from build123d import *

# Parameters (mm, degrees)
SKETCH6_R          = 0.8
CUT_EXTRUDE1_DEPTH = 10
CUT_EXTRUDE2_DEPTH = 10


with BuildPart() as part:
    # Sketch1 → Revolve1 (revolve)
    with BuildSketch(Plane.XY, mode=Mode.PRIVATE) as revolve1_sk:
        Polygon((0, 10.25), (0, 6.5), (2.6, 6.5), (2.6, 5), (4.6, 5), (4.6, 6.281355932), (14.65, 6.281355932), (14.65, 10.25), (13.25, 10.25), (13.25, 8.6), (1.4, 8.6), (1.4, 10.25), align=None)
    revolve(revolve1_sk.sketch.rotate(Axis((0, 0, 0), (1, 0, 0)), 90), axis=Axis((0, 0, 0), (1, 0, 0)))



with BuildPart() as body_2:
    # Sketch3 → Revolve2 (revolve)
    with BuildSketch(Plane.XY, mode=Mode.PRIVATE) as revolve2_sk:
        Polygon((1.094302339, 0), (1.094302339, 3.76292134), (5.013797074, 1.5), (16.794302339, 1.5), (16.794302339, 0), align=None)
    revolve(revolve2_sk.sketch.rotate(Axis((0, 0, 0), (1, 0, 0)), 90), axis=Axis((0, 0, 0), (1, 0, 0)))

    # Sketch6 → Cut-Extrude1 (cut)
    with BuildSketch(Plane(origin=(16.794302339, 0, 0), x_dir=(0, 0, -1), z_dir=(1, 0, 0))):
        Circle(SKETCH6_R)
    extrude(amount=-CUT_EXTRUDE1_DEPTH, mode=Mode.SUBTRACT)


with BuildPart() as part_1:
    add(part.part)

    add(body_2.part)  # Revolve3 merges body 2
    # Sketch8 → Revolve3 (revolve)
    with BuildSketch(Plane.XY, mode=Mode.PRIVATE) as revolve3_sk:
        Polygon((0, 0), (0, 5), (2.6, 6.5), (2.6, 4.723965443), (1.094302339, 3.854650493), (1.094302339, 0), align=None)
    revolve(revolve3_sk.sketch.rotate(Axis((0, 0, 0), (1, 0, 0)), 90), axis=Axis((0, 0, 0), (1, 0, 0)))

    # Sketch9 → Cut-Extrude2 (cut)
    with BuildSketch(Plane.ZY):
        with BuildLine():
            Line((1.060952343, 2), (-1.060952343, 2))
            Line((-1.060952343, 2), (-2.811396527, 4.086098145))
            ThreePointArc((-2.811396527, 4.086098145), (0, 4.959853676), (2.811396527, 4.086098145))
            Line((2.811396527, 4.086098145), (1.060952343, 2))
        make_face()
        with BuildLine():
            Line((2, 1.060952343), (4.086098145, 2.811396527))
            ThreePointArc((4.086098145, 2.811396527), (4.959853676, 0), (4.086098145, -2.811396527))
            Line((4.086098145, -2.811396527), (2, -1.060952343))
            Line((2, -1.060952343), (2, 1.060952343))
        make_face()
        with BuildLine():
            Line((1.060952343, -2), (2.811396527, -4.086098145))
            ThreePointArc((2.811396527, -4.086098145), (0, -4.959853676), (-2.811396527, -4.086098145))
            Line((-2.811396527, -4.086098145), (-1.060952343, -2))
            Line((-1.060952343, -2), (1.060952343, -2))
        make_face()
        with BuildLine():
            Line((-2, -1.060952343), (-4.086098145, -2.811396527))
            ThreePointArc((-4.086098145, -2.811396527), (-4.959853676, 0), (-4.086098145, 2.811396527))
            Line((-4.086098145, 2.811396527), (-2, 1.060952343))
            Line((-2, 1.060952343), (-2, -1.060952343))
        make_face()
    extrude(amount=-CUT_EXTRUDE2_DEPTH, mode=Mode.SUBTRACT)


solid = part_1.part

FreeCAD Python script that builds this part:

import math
import FreeCAD as App
import Part
import Sketcher
from FreeCAD import Vector
Q = App.Units.Quantity

doc = App.newDocument("Part")
body = doc.addObject("PartDesign::Body", "Body")

# Sketch on XY plane
sketch1 = body.newObject("Sketcher::SketchObject", "Sketch")
sketch1.AttachmentSupport = (doc.getObject("XY_Plane"), [""])
sketch1.MapMode = "FlatFace"
sketch1.addGeometry(Part.LineSegment(Vector(0, 10.2, 0), Vector(0, 6.5, 0)), False)
sketch1.addGeometry(Part.LineSegment(Vector(0, 6.5, 0), Vector(2.6, 6.5, 0)), False)
sketch1.addGeometry(Part.LineSegment(Vector(2.6, 6.5, 0), Vector(2.6, 5, 0)), False)
sketch1.addGeometry(Part.LineSegment(Vector(2.6, 5, 0), Vector(4.6, 5, 0)), False)
sketch1.addGeometry(Part.LineSegment(Vector(4.6, 5, 0), Vector(4.6, 6.3, 0)), False)
sketch1.addGeometry(Part.LineSegment(Vector(4.6, 6.3, 0), Vector(14.7, 6.3, 0)), False)
sketch1.addGeometry(Part.LineSegment(Vector(14.7, 6.3, 0), Vector(14.7, 10.2, 0)), False)
sketch1.addGeometry(Part.LineSegment(Vector(14.7, 10.2, 0), Vector(13.2, 10.2, 0)), False)
sketch1.addGeometry(Part.LineSegment(Vector(13.2, 10.2, 0), Vector(13.2, 8.6, 0)), False)
sketch1.addGeometry(Part.LineSegment(Vector(13.2, 8.6, 0), Vector(1.4, 8.6, 0)), False)
sketch1.addGeometry(Part.LineSegment(Vector(1.4, 8.6, 0), Vector(1.4, 10.2, 0)), False)
sketch1.addGeometry(Part.LineSegment(Vector(1.4, 10.2, 0), Vector(0, 10.2, 0)), False)
sketch1.addConstraint(Sketcher.Constraint("Coincident", 0, 2, 1, 1))
sketch1.addConstraint(Sketcher.Constraint("Coincident", 1, 2, 2, 1))
sketch1.addConstraint(Sketcher.Constraint("Coincident", 2, 2, 3, 1))
sketch1.addConstraint(Sketcher.Constraint("Coincident", 3, 2, 4, 1))
sketch1.addConstraint(Sketcher.Constraint("Coincident", 4, 2, 5, 1))
sketch1.addConstraint(Sketcher.Constraint("Coincident", 5, 2, 6, 1))
sketch1.addConstraint(Sketcher.Constraint("Coincident", 6, 2, 7, 1))
sketch1.addConstraint(Sketcher.Constraint("Coincident", 7, 2, 8, 1))
sketch1.addConstraint(Sketcher.Constraint("Coincident", 8, 2, 9, 1))
sketch1.addConstraint(Sketcher.Constraint("Coincident", 9, 2, 10, 1))
sketch1.addConstraint(Sketcher.Constraint("Coincident", 10, 2, 11, 1))
sketch1.addConstraint(Sketcher.Constraint("Coincident", 11, 2, 0, 1))
sketch1.addConstraint(Sketcher.Constraint("Vertical", 0))
sketch1.addConstraint(Sketcher.Constraint("Horizontal", 1))
sketch1.addConstraint(Sketcher.Constraint("Vertical", 2))
sketch1.addConstraint(Sketcher.Constraint("Horizontal", 3))
sketch1.addConstraint(Sketcher.Constraint("Vertical", 4))
sketch1.addConstraint(Sketcher.Constraint("Horizontal", 5))
sketch1.addConstraint(Sketcher.Constraint("Vertical", 6))
sketch1.addConstraint(Sketcher.Constraint("Horizontal", 7))
sketch1.addConstraint(Sketcher.Constraint("Vertical", 8))
sketch1.addConstraint(Sketcher.Constraint("Horizontal", 9))
sketch1.addConstraint(Sketcher.Constraint("Vertical", 10))
sketch1.addConstraint(Sketcher.Constraint("Horizontal", 11))
sketch1.addConstraint(Sketcher.Constraint("PointOnObject", 0, 2, -2))
sketch1.addConstraint(Sketcher.Constraint("Horizontal", 7, 2, 10, 2))
sketch1.addConstraint(Sketcher.Constraint("Equal", 7, 11))
sketch1.addConstraint(Sketcher.Constraint("DistanceX", 3, 1, 3, 2, 2.0))
sketch1.addConstraint(Sketcher.Constraint("DistanceX", 1, 1, 1, 2, 2.6))
sketch1.addConstraint(Sketcher.Constraint("DistanceX", 7, 2, 7, 1, 1.4))
sketch1.addConstraint(Sketcher.Constraint("DistanceY", 2, 2, 2, 1, 1.5))
sketch1.addConstraint(Sketcher.Constraint("DistanceY", -1, 1, 2, 2, 5.0))
sketch1.addConstraint(Sketcher.Constraint("DistanceX", 5, 1, 5, 2, 10.05))
sketch1.addConstraint(Sketcher.Constraint("DistanceY", 0, 2, 0, 1, 3.75))
sketch1.addConstraint(Sketcher.Constraint("DistanceY", 8, 2, 8, 1, 1.65))
sketch1.addConstraint(Sketcher.Constraint("DistanceY", 4, 1, 4, 2, 1.281356))
revolution = body.newObject("PartDesign::Revolution", "Revolution")
revolution.Profile = sketch1
revolution.ReferenceAxis = (sketch1, ["H_Axis"])
revolution.Angle = 360
body2 = doc.addObject("PartDesign::Body", "Body001")

# Sketch on XY plane
sketch2 = body2.newObject("Sketcher::SketchObject", "Sketch001")
sketch2.AttachmentSupport = (doc.getObject("XY_Plane001"), [""])
sketch2.MapMode = "FlatFace"
sketch2.addGeometry(Part.LineSegment(Vector(1.1, 3.8, 0), Vector(1.1, 0, 0)), False)
sketch2.addGeometry(Part.LineSegment(Vector(1.1, 0, 0), Vector(16.8, 0, 0)), False)
sketch2.addGeometry(Part.LineSegment(Vector(16.8, 0, 0), Vector(16.8, 1.5, 0)), False)
sketch2.addGeometry(Part.LineSegment(Vector(16.8, 1.5, 0), Vector(5, 1.5, 0)), False)
sketch2.addGeometry(Part.LineSegment(Vector(5, 1.5, 0), Vector(1.1, 3.8, 0)), False)
sketch2.addConstraint(Sketcher.Constraint("Coincident", 0, 2, 1, 1))
sketch2.addConstraint(Sketcher.Constraint("Coincident", 1, 2, 2, 1))
sketch2.addConstraint(Sketcher.Constraint("Coincident", 2, 2, 3, 1))
sketch2.addConstraint(Sketcher.Constraint("Coincident", 3, 2, 4, 1))
sketch2.addConstraint(Sketcher.Constraint("Coincident", 4, 2, 0, 1))
sketch2.addConstraint(Sketcher.Constraint("Vertical", 0))
sketch2.addConstraint(Sketcher.Constraint("Horizontal", 1))
sketch2.addConstraint(Sketcher.Constraint("Vertical", 2))
sketch2.addConstraint(Sketcher.Constraint("Horizontal", 3))
sketch2.addConstraint(Sketcher.Constraint("PointOnObject", 0, 2, -1))
sketch2.addConstraint(Sketcher.Constraint("Angle", 4, Q("150 deg")))
sketch2.addConstraint(Sketcher.Constraint("DistanceX", 1, 1, 1, 2, 15.7))
sketch2.addConstraint(Sketcher.Constraint("DistanceY", 2, 1, 2, 2, 1.5))
sketch2.addConstraint(Sketcher.Constraint("DistanceY", 0, 2, 0, 1, 3.762921))
sketch2.addConstraint(Sketcher.Constraint("DistanceX", -1, 1, 0, 2, 1.094302))
revolution2 = body2.newObject("PartDesign::Revolution", "Revolution001")
revolution2.Profile = sketch2
revolution2.ReferenceAxis = (sketch2, ["H_Axis"])
revolution2.Angle = 360

# Sketch on YZ plane
sketch3 = body2.newObject("Sketcher::SketchObject", "Sketch002")
sketch3.AttachmentSupport = (doc.getObject("YZ_Plane001"), [""])
sketch3.MapMode = "FlatFace"
sketch3.AttachmentOffset = App.Placement(Vector(0, 0, 16.794302), App.Rotation())
sketch3.addGeometry(Part.Circle(Vector(0, 0, 0), Vector(0, 0, 1), 0.8), False)
sketch3.addConstraint(Sketcher.Constraint("Coincident", 0, 3, -1, 1))
sketch3.addConstraint(Sketcher.Constraint("Diameter", 0, 1.6))
pocket1 = body2.newObject("PartDesign::Pocket", "Pocket")
pocket1.Profile = sketch3
pocket1.Length = 10
body.AllowCompound = True
doc.recompute()

boolean = body.newObject("PartDesign::Boolean", "Boolean")
boolean.Type = "Fuse"
boolean.addObjects([body2])

# Sketch on XY plane
sketch4 = body.newObject("Sketcher::SketchObject", "Sketch003")
sketch4.AttachmentSupport = (doc.getObject("XY_Plane"), [""])
sketch4.MapMode = "FlatFace"
sketch4.addGeometry(Part.LineSegment(Vector(0, 5, 0), Vector(0, 0, 0)), False)
sketch4.addGeometry(Part.LineSegment(Vector(0, 0, 0), Vector(1.1, 0, 0)), False)
sketch4.addGeometry(Part.LineSegment(Vector(1.1, 0, 0), Vector(1.1, 3.9, 0)), False)
sketch4.addGeometry(Part.LineSegment(Vector(1.1, 3.9, 0), Vector(2.6, 4.7, 0)), False)
sketch4.addGeometry(Part.LineSegment(Vector(2.6, 4.7, 0), Vector(2.6, 6.5, 0)), False)
sketch4.addGeometry(Part.LineSegment(Vector(2.6, 6.5, 0), Vector(0, 5, 0)), False)
sketch4.addConstraint(Sketcher.Constraint("Coincident", 0, 2, 1, 1))
sketch4.addConstraint(Sketcher.Constraint("Coincident", 1, 2, 2, 1))
sketch4.addConstraint(Sketcher.Constraint("Coincident", 2, 2, 3, 1))
sketch4.addConstraint(Sketcher.Constraint("Coincident", 3, 2, 4, 1))
sketch4.addConstraint(Sketcher.Constraint("Coincident", 4, 2, 5, 1))
sketch4.addConstraint(Sketcher.Constraint("Coincident", 5, 2, 0, 1))
sketch4.addConstraint(Sketcher.Constraint("Vertical", 0))
sketch4.addConstraint(Sketcher.Constraint("Horizontal", 1))
sketch4.addConstraint(Sketcher.Constraint("Vertical", 2))
sketch4.addConstraint(Sketcher.Constraint("Vertical", 4))
sketch4.addConstraint(Sketcher.Constraint("Coincident", 0, 2, -1, 1))
sketch4.addConstraint(Sketcher.Constraint("DistanceY", 0, 2, 0, 1, 5.0))
sketch4.addConstraint(Sketcher.Constraint("Angle", 3, Q("30 deg")))
sketch4.addConstraint(Sketcher.Constraint("DistanceX", -1, 1, 3, 2, 2.6))
sketch4.addConstraint(Sketcher.Constraint("DistanceY", -1, 1, 4, 2, 6.5))
sketch4.addConstraint(Sketcher.Constraint("DistanceY", 2, 1, 2, 2, 3.85465))
sketch4.addConstraint(Sketcher.Constraint("Distance", 3, 1.73863))
revolution3 = body.newObject("PartDesign::Revolution", "Revolution002")
revolution3.Profile = sketch4
revolution3.ReferenceAxis = (sketch4, ["H_Axis"])
revolution3.Angle = 360

# Sketch on YZ plane
sketch5 = body.newObject("Sketcher::SketchObject", "Sketch004")
sketch5.AttachmentSupport = (doc.getObject("YZ_Plane"), [""])
sketch5.MapMode = "FlatFace"
sketch5.addGeometry(Part.LineSegment(Vector(2, -1.1, 0), Vector(2, 1.1, 0)), False)
sketch5.addGeometry(Part.LineSegment(Vector(2, 1.1, 0), Vector(4.1, 2.8, 0)), False)
sketch5.addGeometry(Part.ArcOfCircle(Part.Circle(Vector(0, 0, 0), Vector(0, 0, 1), 5), math.radians(-35), math.radians(35)), False)
sketch5.addGeometry(Part.LineSegment(Vector(4.1, -2.8, 0), Vector(2, -1.1, 0)), False)
sketch5.addGeometry(Part.LineSegment(Vector(2.8, 4.1, 0), Vector(1.1, 2, 0)), False)
sketch5.addGeometry(Part.LineSegment(Vector(1.1, 2, 0), Vector(-1.1, 2, 0)), False)
sketch5.addGeometry(Part.LineSegment(Vector(-1.1, 2, 0), Vector(-2.8, 4.1, 0)), False)
sketch5.addGeometry(Part.ArcOfCircle(Part.Circle(Vector(0, 0, 0), Vector(0, 0, 1), 5), math.radians(55), math.radians(125)), False)
sketch5.addGeometry(Part.LineSegment(Vector(-4.1, 2.8, 0), Vector(-2, 1.1, 0)), False)
sketch5.addGeometry(Part.LineSegment(Vector(-2, 1.1, 0), Vector(-2, -1.1, 0)), False)
sketch5.addGeometry(Part.LineSegment(Vector(-2, -1.1, 0), Vector(-4.1, -2.8, 0)), False)
sketch5.addGeometry(Part.ArcOfCircle(Part.Circle(Vector(0, 0, 0), Vector(0, 0, 1), 5), math.radians(145), math.radians(215)), False)
sketch5.addGeometry(Part.LineSegment(Vector(-2.8, -4.1, 0), Vector(-1.1, -2, 0)), False)
sketch5.addGeometry(Part.LineSegment(Vector(-1.1, -2, 0), Vector(1.1, -2, 0)), False)
sketch5.addGeometry(Part.LineSegment(Vector(1.1, -2, 0), Vector(2.8, -4.1, 0)), False)
sketch5.addGeometry(Part.ArcOfCircle(Part.Circle(Vector(0, 0, 0), Vector(0, 0, 1), 5), math.radians(-125), math.radians(-55)), False)
sketch5.addConstraint(Sketcher.Constraint("Coincident", 0, 2, 1, 1))
sketch5.addConstraint(Sketcher.Constraint("Coincident", 1, 2, 2, 2))
sketch5.addConstraint(Sketcher.Constraint("Coincident", 2, 1, 3, 1))
sketch5.addConstraint(Sketcher.Constraint("Coincident", 3, 2, 0, 1))
sketch5.addConstraint(Sketcher.Constraint("Coincident", 4, 2, 5, 1))
sketch5.addConstraint(Sketcher.Constraint("Coincident", 5, 2, 6, 1))
sketch5.addConstraint(Sketcher.Constraint("Coincident", 6, 2, 7, 2))
sketch5.addConstraint(Sketcher.Constraint("Coincident", 7, 1, 4, 1))
sketch5.addConstraint(Sketcher.Constraint("Coincident", 8, 2, 9, 1))
sketch5.addConstraint(Sketcher.Constraint("Coincident", 9, 2, 10, 1))
sketch5.addConstraint(Sketcher.Constraint("Coincident", 10, 2, 11, 2))
sketch5.addConstraint(Sketcher.Constraint("Coincident", 11, 1, 8, 1))
sketch5.addConstraint(Sketcher.Constraint("Coincident", 12, 2, 13, 1))
sketch5.addConstraint(Sketcher.Constraint("Coincident", 13, 2, 14, 1))
sketch5.addConstraint(Sketcher.Constraint("Coincident", 14, 2, 15, 2))
sketch5.addConstraint(Sketcher.Constraint("Coincident", 15, 1, 12, 1))
sketch5.addConstraint(Sketcher.Constraint("Vertical", 0))
sketch5.addConstraint(Sketcher.Constraint("Horizontal", 5))
sketch5.addConstraint(Sketcher.Constraint("Vertical", 9))
sketch5.addConstraint(Sketcher.Constraint("Horizontal", 13))
sketch5.addConstraint(Sketcher.Constraint("Coincident", 2, 3, -1, 1))
sketch5.addConstraint(Sketcher.Constraint("Coincident", 7, 3, -1, 1))
sketch5.addConstraint(Sketcher.Constraint("Coincident", 11, 3, -1, 1))
sketch5.addConstraint(Sketcher.Constraint("Coincident", 15, 3, -1, 1))
sketch5.addConstraint(Sketcher.Constraint("Equal", 2, 7))
sketch5.addConstraint(Sketcher.Constraint("Equal", 7, 11))
sketch5.addConstraint(Sketcher.Constraint("Equal", 11, 15))
sketch5.addConstraint(Sketcher.Constraint("Symmetric", 3, 2, 8, 2, -1, 1))
sketch5.addConstraint(Sketcher.Constraint("Symmetric", 4, 2, 12, 2, -1, 1))
sketch5.addConstraint(Sketcher.Constraint("Perpendicular", 3, 4))
sketch5.addConstraint(Sketcher.Constraint("Perpendicular", 1, 6))
sketch5.addConstraint(Sketcher.Constraint("Perpendicular", 4, 8))
sketch5.addConstraint(Sketcher.Constraint("Perpendicular", 6, 10))
sketch5.addConstraint(Sketcher.Constraint("Perpendicular", 8, 12))
sketch5.addConstraint(Sketcher.Constraint("Perpendicular", 10, 14))
sketch5.addConstraint(Sketcher.Constraint("Horizontal", 6, 2, 7, 1))
sketch5.addConstraint(Sketcher.Constraint("Horizontal", 0, 2, 8, 2))
sketch5.addConstraint(Sketcher.Constraint("Horizontal", 3, 2, 9, 2))
sketch5.addConstraint(Sketcher.Constraint("Horizontal", 2, 1, 10, 2))
sketch5.addConstraint(Sketcher.Constraint("Horizontal", 14, 2, 15, 1))
sketch5.addConstraint(Sketcher.Constraint("Equal", 13, 0))
sketch5.addConstraint(Sketcher.Constraint("Equal", 3, 4))
sketch5.addConstraint(Sketcher.Constraint("Angle", 1, Q("40 deg")))
sketch5.addConstraint(Sketcher.Constraint("DistanceX", -1, 1, 0, 2, 2.0))
sketch5.addConstraint(Sketcher.Constraint("Radius", 2, 4.959854))
sketch5.addConstraint(Sketcher.Constraint("DistanceX", -1, 1, 1, 2, 4.086098))
pocket2 = body.newObject("PartDesign::Pocket", "Pocket001")
pocket2.Profile = sketch5
pocket2.Length = 10
pocket2.Reversed = True

doc.recompute()
